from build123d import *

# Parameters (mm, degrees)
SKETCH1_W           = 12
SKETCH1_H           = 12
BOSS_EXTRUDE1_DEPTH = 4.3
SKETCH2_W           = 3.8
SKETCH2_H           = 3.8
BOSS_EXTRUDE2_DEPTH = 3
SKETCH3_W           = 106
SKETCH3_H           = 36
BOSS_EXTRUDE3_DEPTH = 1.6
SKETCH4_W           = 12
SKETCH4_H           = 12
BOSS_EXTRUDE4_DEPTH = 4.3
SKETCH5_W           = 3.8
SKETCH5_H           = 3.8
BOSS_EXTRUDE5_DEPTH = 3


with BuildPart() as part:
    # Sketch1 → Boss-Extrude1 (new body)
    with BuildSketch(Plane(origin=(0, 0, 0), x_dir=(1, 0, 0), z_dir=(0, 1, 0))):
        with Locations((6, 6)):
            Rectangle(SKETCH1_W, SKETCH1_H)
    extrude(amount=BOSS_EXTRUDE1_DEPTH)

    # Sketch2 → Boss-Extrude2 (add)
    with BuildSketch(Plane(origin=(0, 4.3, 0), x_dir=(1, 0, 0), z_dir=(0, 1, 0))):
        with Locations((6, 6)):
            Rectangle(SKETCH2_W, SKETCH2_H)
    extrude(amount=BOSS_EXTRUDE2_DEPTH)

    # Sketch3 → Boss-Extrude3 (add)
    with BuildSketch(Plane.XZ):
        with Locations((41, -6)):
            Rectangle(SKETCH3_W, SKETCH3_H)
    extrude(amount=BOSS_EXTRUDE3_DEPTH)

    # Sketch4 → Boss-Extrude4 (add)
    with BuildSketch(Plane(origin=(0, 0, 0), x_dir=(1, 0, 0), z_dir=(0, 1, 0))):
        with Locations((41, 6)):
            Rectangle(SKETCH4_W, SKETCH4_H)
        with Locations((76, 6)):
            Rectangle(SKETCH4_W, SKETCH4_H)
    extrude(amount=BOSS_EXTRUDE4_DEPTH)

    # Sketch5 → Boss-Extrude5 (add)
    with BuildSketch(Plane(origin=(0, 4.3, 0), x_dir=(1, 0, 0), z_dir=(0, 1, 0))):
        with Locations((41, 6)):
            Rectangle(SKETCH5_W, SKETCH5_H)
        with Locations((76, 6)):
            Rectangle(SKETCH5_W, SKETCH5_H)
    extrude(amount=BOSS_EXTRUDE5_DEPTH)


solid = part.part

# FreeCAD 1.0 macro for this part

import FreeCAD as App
import Part
import Sketcher

V = App.Vector
Q = App.Units.Quantity


def add_polygon(sketch, points):
    """Adds a closed chain of lines whose ends are joined by coincident constraints."""
    first, n = sketch.GeometryCount, len(points)
    for a, b in zip(points, points[1:] + points[:1]):
        sketch.addGeometry(Part.LineSegment(App.Vector(*a, 0), App.Vector(*b, 0)), False)
    for i in range(n):
        sketch.addConstraint(Sketcher.Constraint("Coincident", first + i, 2, first + (i + 1) % n, 1))

doc = App.newDocument("Part")
body = doc.addObject("PartDesign::Body", "Body")

# Sketch on XZ plane
sketch1 = body.newObject("Sketcher::SketchObject", "Sketch")
sketch1.AttachmentSupport = (doc.getObject("XZ_Plane"), [""])
sketch1.MapMode = "FlatFace"
add_polygon(sketch1, [(0, -12), (0, 0), (12, 0), (12, -12)])  # lines 0-3
sketch1.addConstraint([
    Sketcher.Constraint("Vertical", 0),
    Sketcher.Constraint("Horizontal", 1),
    Sketcher.Constraint("Vertical", 2),
    Sketcher.Constraint("Horizontal", 3),
    Sketcher.Constraint("Coincident", 0, 2, -1, 1),
    Sketcher.Constraint("Equal", 3, 0),
    Sketcher.Constraint("DistanceX", 1, 1, 1, 2, Q("12 mm")),
])
pad1 = body.newObject("PartDesign::Pad", "Pad")
pad1.Profile = sketch1
pad1.Length = 4.3
pad1.Reversed = True

# Sketch on XZ plane
sketch2 = body.newObject("Sketcher::SketchObject", "Sketch001")
sketch2.AttachmentSupport = (doc.getObject("XZ_Plane"), [""])
sketch2.MapMode = "FlatFace"
sketch2.AttachmentOffset = App.Placement(V(0, 0, -4.3), App.Rotation())
add_polygon(sketch2, [(4.1, -7.9), (4.1, -4.1), (7.9, -4.1), (7.9, -7.9)])  # lines 0-3
sketch2.addConstraint([
    Sketcher.Constraint("Vertical", 0),
    Sketcher.Constraint("Horizontal", 1),
    Sketcher.Constraint("Vertical", 2),
    Sketcher.Constraint("Horizontal", 3),
    Sketcher.Constraint("Equal", 3, 0),
    Sketcher.Constraint("DistanceX", 1, 1, 1, 2, Q("3.8 mm")),
    Sketcher.Constraint("DistanceX", -1, 1, 0, 2, Q("4.1 mm")),
    Sketcher.Constraint("DistanceY", 0, 2, -1, 1, Q("4.1 mm")),
])
pad2 = body.newObject("PartDesign::Pad", "Pad001")
pad2.Profile = sketch2
pad2.Length = 3
pad2.Reversed = True

# Sketch on XZ plane
sketch3 = body.newObject("Sketcher::SketchObject", "Sketch002")
sketch3.AttachmentSupport = (doc.getObject("XZ_Plane"), [""])
sketch3.MapMode = "FlatFace"
add_polygon(sketch3, [(-12, 12), (-12, -24), (94, -24), (94, 12)])  # lines 0-3
sketch3.addConstraint([
    Sketcher.Constraint("Vertical", 0),
    Sketcher.Constraint("Horizontal", 1),
    Sketcher.Constraint("Vertical", 2),
    Sketcher.Constraint("Horizontal", 3),
    Sketcher.Constraint("DistanceX", 1, 1, 1, 2, Q("106 mm")),
    Sketcher.Constraint("DistanceY", 0, 2, 0, 1, Q("36 mm")),
    Sketcher.Constraint("DistanceX", 0, 2, -1, 1, Q("12 mm")),
    Sketcher.Constraint("DistanceY", 0, 2, -1, 1, Q("24 mm")),
])
pad3 = body.newObject("PartDesign::Pad", "Pad002")
pad3.Profile = sketch3
pad3.Length = 1.6

# Sketch on XZ plane
sketch4 = body.newObject("Sketcher::SketchObject", "Sketch003")
sketch4.AttachmentSupport = (doc.getObject("XZ_Plane"), [""])
sketch4.MapMode = "FlatFace"
add_polygon(sketch4, [(35, -12), (35, 0), (47, 0), (47, -12)])  # lines 0-3
add_polygon(sketch4, [(70, -12), (70, 0), (82, 0), (82, -12)])  # lines 4-7
sketch4.addConstraint([
    Sketcher.Constraint("Vertical", 0),
    Sketcher.Constraint("Horizontal", 1),
    Sketcher.Constraint("Vertical", 2),
    Sketcher.Constraint("Horizontal", 3),
    Sketcher.Constraint("Vertical", 4),
    Sketcher.Constraint("Horizontal", 5),
    Sketcher.Constraint("Vertical", 6),
    Sketcher.Constraint("Horizontal", 7),
    Sketcher.Constraint("PointOnObject", 0, 2, -1),
    Sketcher.Constraint("PointOnObject", 4, 2, -1),
    Sketcher.Constraint("Horizontal", 3, 2, 6, 2),
    Sketcher.Constraint("Equal", 3, 5),
    Sketcher.Constraint("Equal", 7, 0),
    Sketcher.Constraint("DistanceX", 1, 1, 1, 2, Q("12 mm")),
    Sketcher.Constraint("DistanceX", -1, 1, 0, 2, Q("35 mm")),
    Sketcher.Constraint("DistanceX", -1, 1, 4, 2, Q("70 mm")),
])
pad4 = body.newObject("PartDesign::Pad", "Pad003")
pad4.Profile = sketch4
pad4.Length = 4.3
pad4.Reversed = True

# Sketch on XZ plane
sketch5 = body.newObject("Sketcher::SketchObject", "Sketch004")
sketch5.AttachmentSupport = (doc.getObject("XZ_Plane"), [""])
sketch5.MapMode = "FlatFace"
sketch5.AttachmentOffset = App.Placement(V(0, 0, -4.3), App.Rotation())
add_polygon(sketch5, [(39.1, -7.9), (39.1, -4.1), (42.9, -4.1), (42.9, -7.9)])  # lines 0-3
add_polygon(sketch5, [(74.1, -7.9), (74.1, -4.1), (77.9, -4.1), (77.9, -7.9)])  # lines 4-7
sketch5.addConstraint([
    Sketcher.Constraint("Vertical", 0),
    Sketcher.Constraint("Horizontal", 1),
    Sketcher.Constraint("Vertical", 2),
    Sketcher.Constraint("Horizontal", 3),
    Sketcher.Constraint("Vertical", 4),
    Sketcher.Constraint("Horizontal", 5),
    Sketcher.Constraint("Vertical", 6),
    Sketcher.Constraint("Horizontal", 7),
    Sketcher.Constraint("Horizontal", 1, 2, 4, 2),
    Sketcher.Constraint("Horizontal", 3, 2, 6, 2),
    Sketcher.Constraint("Equal", 3, 5),
    Sketcher.Constraint("Equal", 7, 0),
    Sketcher.Constraint("DistanceX", 1, 1, 1, 2, Q("3.8 mm")),
    Sketcher.Constraint("DistanceX", 0, 2, 4, 2, Q("35 mm")),
    Sketcher.Constraint("DistanceX", -1, 1, 0, 2, Q("39.1 mm")),
    Sketcher.Constraint("DistanceY", 0, 2, -1, 1, Q("4.1 mm")),
])
pad5 = body.newObject("PartDesign::Pad", "Pad004")
pad5.Profile = sketch5
pad5.Length = 3
pad5.Reversed = True

doc.recompute()
